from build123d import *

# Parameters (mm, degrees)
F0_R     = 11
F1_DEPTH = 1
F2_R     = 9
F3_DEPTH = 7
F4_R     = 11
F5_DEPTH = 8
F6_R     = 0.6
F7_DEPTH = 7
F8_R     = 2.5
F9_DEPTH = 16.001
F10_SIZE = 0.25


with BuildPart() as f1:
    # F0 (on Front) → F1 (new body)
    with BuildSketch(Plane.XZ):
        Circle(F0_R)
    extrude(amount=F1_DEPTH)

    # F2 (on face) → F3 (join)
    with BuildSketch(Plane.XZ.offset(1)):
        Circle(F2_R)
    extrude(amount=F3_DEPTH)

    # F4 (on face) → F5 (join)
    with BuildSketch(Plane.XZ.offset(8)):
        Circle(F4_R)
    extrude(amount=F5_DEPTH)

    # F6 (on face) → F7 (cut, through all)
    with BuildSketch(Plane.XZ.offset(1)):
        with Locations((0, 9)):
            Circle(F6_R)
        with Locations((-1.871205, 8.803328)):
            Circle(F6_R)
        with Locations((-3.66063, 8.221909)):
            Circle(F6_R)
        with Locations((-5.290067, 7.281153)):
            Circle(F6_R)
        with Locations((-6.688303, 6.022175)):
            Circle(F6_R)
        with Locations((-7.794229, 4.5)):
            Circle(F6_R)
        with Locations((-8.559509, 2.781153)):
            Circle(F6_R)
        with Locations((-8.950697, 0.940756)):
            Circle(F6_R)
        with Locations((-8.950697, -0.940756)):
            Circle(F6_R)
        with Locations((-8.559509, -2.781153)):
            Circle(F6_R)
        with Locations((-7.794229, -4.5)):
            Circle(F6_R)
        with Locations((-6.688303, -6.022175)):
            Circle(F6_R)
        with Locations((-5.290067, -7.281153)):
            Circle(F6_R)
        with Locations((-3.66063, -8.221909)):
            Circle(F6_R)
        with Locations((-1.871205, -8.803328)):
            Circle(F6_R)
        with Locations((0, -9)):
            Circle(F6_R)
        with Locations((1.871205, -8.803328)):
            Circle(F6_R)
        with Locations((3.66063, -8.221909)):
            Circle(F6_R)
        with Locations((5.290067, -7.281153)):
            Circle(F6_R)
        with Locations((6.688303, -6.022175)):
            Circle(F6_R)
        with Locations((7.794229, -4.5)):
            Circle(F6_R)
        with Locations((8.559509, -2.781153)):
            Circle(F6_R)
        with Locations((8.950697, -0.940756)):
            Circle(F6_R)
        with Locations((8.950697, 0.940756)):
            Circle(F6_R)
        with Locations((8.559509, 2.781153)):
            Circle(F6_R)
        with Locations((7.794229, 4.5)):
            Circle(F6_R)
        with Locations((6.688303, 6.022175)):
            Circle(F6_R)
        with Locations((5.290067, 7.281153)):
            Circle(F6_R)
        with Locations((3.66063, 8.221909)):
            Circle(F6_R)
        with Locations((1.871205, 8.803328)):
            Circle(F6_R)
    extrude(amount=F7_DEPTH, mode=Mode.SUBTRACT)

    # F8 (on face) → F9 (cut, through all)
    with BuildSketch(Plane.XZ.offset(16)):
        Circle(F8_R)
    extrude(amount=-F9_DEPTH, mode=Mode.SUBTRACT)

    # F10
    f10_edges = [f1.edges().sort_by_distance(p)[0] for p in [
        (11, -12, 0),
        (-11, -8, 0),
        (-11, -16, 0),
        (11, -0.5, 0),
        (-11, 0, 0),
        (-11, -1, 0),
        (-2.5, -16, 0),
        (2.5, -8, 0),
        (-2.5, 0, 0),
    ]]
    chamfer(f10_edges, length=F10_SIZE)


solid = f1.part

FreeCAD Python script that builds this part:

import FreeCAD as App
import Part
import Sketcher

V = App.Vector
Q = App.Units.Quantity


def edges_at(feature, points):
    """Names of the edges that pass closest to the given points."""
    edges = feature.Shape.Edges
    near = lambda p: min(range(len(edges)), key=lambda i: edges[i].distToShape(Part.Vertex(*p))[0])
    return sorted({f"Edge{near(p) + 1}" for p in points})

doc = App.newDocument("Part")
body = doc.addObject("PartDesign::Body", "Body")

# Sketch on XZ plane
sketch1 = body.newObject("Sketcher::SketchObject", "Sketch")
sketch1.AttachmentSupport = (doc.getObject("XZ_Plane"), [""])
sketch1.MapMode = "FlatFace"
sketch1.addGeometry(Part.Circle(V(0, 0, 0), V(0, 0, 1), 11), False)
sketch1.addConstraint([
    Sketcher.Constraint("Coincident", 0, 3, -1, 1),
    Sketcher.Constraint("Diameter", 0, Q("22 mm")),
])
pad1 = body.newObject("PartDesign::Pad", "Pad")
pad1.Profile = sketch1
pad1.Length = 1

# Sketch on XZ plane
sketch2 = body.newObject("Sketcher::SketchObject", "Sketch001")
sketch2.AttachmentSupport = (doc.getObject("XZ_Plane"), [""])
sketch2.MapMode = "FlatFace"
sketch2.AttachmentOffset = App.Placement(V(0, 0, 1), App.Rotation())
sketch2.addGeometry(Part.Circle(V(0, 0, 0), V(0, 0, 1), 9), False)
sketch2.addConstraint([
    Sketcher.Constraint("Coincident", 0, 3, -1, 1),
    Sketcher.Constraint("Diameter", 0, Q("18 mm")),
])
pad2 = body.newObject("PartDesign::Pad", "Pad001")
pad2.Profile = sketch2
pad2.Length = 7

# Sketch on XZ plane
sketch3 = body.newObject("Sketcher::SketchObject", "Sketch002")
sketch3.AttachmentSupport = (doc.getObject("XZ_Plane"), [""])
sketch3.MapMode = "FlatFace"
sketch3.AttachmentOffset = App.Placement(V(0, 0, 8), App.Rotation())
sketch3.addGeometry(Part.Circle(V(0, 0, 0), V(0, 0, 1), 11), False)
sketch3.addConstraint([
    Sketcher.Constraint("Coincident", 0, 3, -1, 1),
    Sketcher.Constraint("Diameter", 0, Q("22 mm")),
])
pad3 = body.newObject("PartDesign::Pad", "Pad002")
pad3.Profile = sketch3
pad3.Length = 8

# Sketch on XZ plane
sketch4 = body.newObject("Sketcher::SketchObject", "Sketch003")
sketch4.AttachmentSupport = (doc.getObject("XZ_Plane"), [""])
sketch4.MapMode = "FlatFace"
sketch4.AttachmentOffset = App.Placement(V(0, 0, 1), App.Rotation())
sketch4.addGeometry([
    Part.Circle(V(0, 9, 0), V(0, 0, 1), 0.6),  # 0
    Part.Circle(V(-1.9, 8.8, 0), V(0, 0, 1), 0.6),  # 1
    Part.Circle(V(-3.7, 8.2, 0), V(0, 0, 1), 0.6),  # 2
    Part.Circle(V(-5.3, 7.3, 0), V(0, 0, 1), 0.6),  # 3
    Part.Circle(V(-6.7, 6, 0), V(0, 0, 1), 0.6),  # 4
    Part.Circle(V(-7.8, 4.5, 0), V(0, 0, 1), 0.6),  # 5
    Part.Circle(V(-8.6, 2.8, 0), V(0, 0, 1), 0.6),  # 6
    Part.Circle(V(-9, 0.9, 0), V(0, 0, 1), 0.6),  # 7
    Part.Circle(V(-9, -0.9, 0), V(0, 0, 1), 0.6),  # 8
    Part.Circle(V(-8.6, -2.8, 0), V(0, 0, 1), 0.6),  # 9
    Part.Circle(V(-7.8, -4.5, 0), V(0, 0, 1), 0.6),  # 10
    Part.Circle(V(-6.7, -6, 0), V(0, 0, 1), 0.6),  # 11
    Part.Circle(V(-5.3, -7.3, 0), V(0, 0, 1), 0.6),  # 12
    Part.Circle(V(-3.7, -8.2, 0), V(0, 0, 1), 0.6),  # 13
    Part.Circle(V(-1.9, -8.8, 0), V(0, 0, 1), 0.6),  # 14
    Part.Circle(V(0, -9, 0), V(0, 0, 1), 0.6),  # 15
    Part.Circle(V(1.9, -8.8, 0), V(0, 0, 1), 0.6),  # 16
    Part.Circle(V(3.7, -8.2, 0), V(0, 0, 1), 0.6),  # 17
    Part.Circle(V(5.3, -7.3, 0), V(0, 0, 1), 0.6),  # 18
    Part.Circle(V(6.7, -6, 0), V(0, 0, 1), 0.6),  # 19
    Part.Circle(V(7.8, -4.5, 0), V(0, 0, 1), 0.6),  # 20
    Part.Circle(V(8.6, -2.8, 0), V(0, 0, 1), 0.6),  # 21
    Part.Circle(V(9, -0.9, 0), V(0, 0, 1), 0.6),  # 22
    Part.Circle(V(9, 0.9, 0), V(0, 0, 1), 0.6),  # 23
    Part.Circle(V(8.6, 2.8, 0), V(0, 0, 1), 0.6),  # 24
    Part.Circle(V(7.8, 4.5, 0), V(0, 0, 1), 0.6),  # 25
    Part.Circle(V(6.7, 6, 0), V(0, 0, 1), 0.6),  # 26
    Part.Circle(V(5.3, 7.3, 0), V(0, 0, 1), 0.6),  # 27
    Part.Circle(V(3.7, 8.2, 0), V(0, 0, 1), 0.6),  # 28
    Part.Circle(V(1.9, 8.8, 0), V(0, 0, 1), 0.6),  # 29
], False)
sketch4.addConstraint([
    Sketcher.Constraint("Equal", 0, 1),
    Sketcher.Constraint("Equal", 1, 2),
    Sketcher.Constraint("Equal", 2, 3),
    Sketcher.Constraint("Equal", 3, 4),
    Sketcher.Constraint("Equal", 4, 5),
    Sketcher.Constraint("Equal", 5, 6),
    Sketcher.Constraint("Equal", 6, 7),
    Sketcher.Constraint("Equal", 7, 8),
    Sketcher.Constraint("Equal", 8, 9),
    Sketcher.Constraint("Equal", 9, 10),
    Sketcher.Constraint("Equal", 10, 11),
    Sketcher.Constraint("Equal", 11, 12),
    Sketcher.Constraint("Equal", 12, 13),
    Sketcher.Constraint("Equal", 13, 14),
    Sketcher.Constraint("Equal", 14, 15),
    Sketcher.Constraint("Equal", 15, 16),
    Sketcher.Constraint("Equal", 16, 17),
    Sketcher.Constraint("Equal", 17, 18),
    Sketcher.Constraint("Equal", 18, 19),
    Sketcher.Constraint("Equal", 19, 20),
    Sketcher.Constraint("Equal", 20, 21),
    Sketcher.Constraint("Equal", 21, 22),
    Sketcher.Constraint("Equal", 22, 23),
    Sketcher.Constraint("Equal", 23, 24),
    Sketcher.Constraint("Equal", 24, 25),
    Sketcher.Constraint("Equal", 25, 26),
    Sketcher.Constraint("Equal", 26, 27),
    Sketcher.Constraint("Equal", 27, 28),
    Sketcher.Constraint("Equal", 28, 29),
    Sketcher.Constraint("Symmetric", 0, 3, 15, 3, -1, 1),
    Sketcher.Constraint("Symmetric", 1, 3, 16, 3, -1, 1),
    Sketcher.Constraint("Symmetric", 2, 3, 17, 3, -1, 1),
    Sketcher.Constraint("Symmetric", 3, 3, 18, 3, -1, 1),
    Sketcher.Constraint("Symmetric", 4, 3, 19, 3, -1, 1),
    Sketcher.Constraint("Symmetric", 5, 3, 20, 3, -1, 1),
    Sketcher.Constraint("Symmetric", 6, 3, 21, 3, -1, 1),
    Sketcher.Constraint("Symmetric", 7, 3, 22, 3, -1, 1),
    Sketcher.Constraint("Symmetric", 8, 3, 23, 3, -1, 1),
    Sketcher.Constraint("Symmetric", 9, 3, 24, 3, -1, 1),
    Sketcher.Constraint("Symmetric", 10, 3, 25, 3, -1, 1),
    Sketcher.Constraint("Symmetric", 11, 3, 26, 3, -1, 1),
    Sketcher.Constraint("Symmetric", 12, 3, 27, 3, -1, 1),
    Sketcher.Constraint("Symmetric", 13, 3, 28, 3, -1, 1),
    Sketcher.Constraint("Symmetric", 14, 3, 29, 3, -1, 1),
    Sketcher.Constraint("Symmetric", 14, 3, 16, 3, -2),
    Sketcher.Constraint("Symmetric", 13, 3, 17, 3, -2),
    Sketcher.Constraint("Symmetric", 12, 3, 18, 3, -2),
    Sketcher.Constraint("Symmetric", 11, 3, 19, 3, -2),
    Sketcher.Constraint("Symmetric", 10, 3, 20, 3, -2),
    Sketcher.Constraint("Symmetric", 9, 3, 21, 3, -2),
    Sketcher.Constraint("Symmetric", 8, 3, 22, 3, -2),
    Sketcher.Constraint("PointOnObject", 0, 3, -2),
    Sketcher.Constraint("Diameter", 0, Q("1.2 mm")),
    Sketcher.Constraint("DistanceY", -1, 1, 0, 3, Q("9 mm")),
    Sketcher.Constraint("DistanceY", 10, 3, 5, 3, Q("9 mm")),
    Sketcher.Constraint("DistanceY", 6, 3, 3, 3, Q("4.5 mm")),
    Sketcher.Constraint("DistanceX", 4, 3, 1, 3, Q("4.817098 mm")),
    Sketcher.Constraint("DistanceX", 5, 3, 2, 3, Q("4.133599 mm")),
    Sketcher.Constraint("DistanceX", 2, 3, -1, 1, Q("3.66063 mm")),
    Sketcher.Constraint("DistanceY", -1, 1, 2, 3, Q("8.221909 mm")),
    Sketcher.Constraint("DistanceX", 6, 3, -1, 1, Q("8.559509 mm")),
    Sketcher.Constraint("DistanceY", 1, 3, 0, 3, Q("0.196672 mm")),
    Sketcher.Constraint("DistanceX", 3, 3, 1, 3, Q("3.418862 mm")),
    Sketcher.Constraint("DistanceX", 5, 3, 3, 3, Q("2.504162 mm")),
    Sketcher.Constraint("DistanceY", 6, 3, 4, 3, Q("3.241022 mm")),
    Sketcher.Constraint("DistanceX", 7, 3, 5, 3, Q("1.156468 mm")),
    Sketcher.Constraint("DistanceY", 7, 3, 4, 3, Q("5.081419 mm")),
    Sketcher.Constraint("DistanceY", 8, 3, 6, 3, Q("3.721909 mm")),
])
pocket1 = body.newObject("PartDesign::Pocket", "Pocket")
pocket1.Profile = sketch4
pocket1.Length = 7
pocket1.Reversed = True

# Sketch on XZ plane
sketch5 = body.newObject("Sketcher::SketchObject", "Sketch004")
sketch5.AttachmentSupport = (doc.getObject("XZ_Plane"), [""])
sketch5.MapMode = "FlatFace"
sketch5.AttachmentOffset = App.Placement(V(0, 0, 16), App.Rotation())
sketch5.addGeometry(Part.Circle(V(0, 0, 0), V(0, 0, 1), 2.5), False)
sketch5.addConstraint([
    Sketcher.Constraint("Coincident", 0, 3, -1, 1),
    Sketcher.Constraint("Diameter", 0, Q("5 mm")),
])
pocket2 = body.newObject("PartDesign::Pocket", "Pocket001")
pocket2.Profile = sketch5
pocket2.Type = "ThroughAll"
doc.recompute()

chamfer = body.newObject("PartDesign::Chamfer", "Chamfer")
chamfer.Base = (pocket2, edges_at(pocket2, [
    (11, -12, 0),
    (-11, -8, 0),
    (-11, -16, 0),
    (11, -0.5, 0),
    (-11, 0, 0),
    (-11, -1, 0),
    (-2.5, -16, 0),
    (2.5, -8, 0),
    (-2.5, 0, 0),
]))
chamfer.Size = 0.25

doc.recompute()
